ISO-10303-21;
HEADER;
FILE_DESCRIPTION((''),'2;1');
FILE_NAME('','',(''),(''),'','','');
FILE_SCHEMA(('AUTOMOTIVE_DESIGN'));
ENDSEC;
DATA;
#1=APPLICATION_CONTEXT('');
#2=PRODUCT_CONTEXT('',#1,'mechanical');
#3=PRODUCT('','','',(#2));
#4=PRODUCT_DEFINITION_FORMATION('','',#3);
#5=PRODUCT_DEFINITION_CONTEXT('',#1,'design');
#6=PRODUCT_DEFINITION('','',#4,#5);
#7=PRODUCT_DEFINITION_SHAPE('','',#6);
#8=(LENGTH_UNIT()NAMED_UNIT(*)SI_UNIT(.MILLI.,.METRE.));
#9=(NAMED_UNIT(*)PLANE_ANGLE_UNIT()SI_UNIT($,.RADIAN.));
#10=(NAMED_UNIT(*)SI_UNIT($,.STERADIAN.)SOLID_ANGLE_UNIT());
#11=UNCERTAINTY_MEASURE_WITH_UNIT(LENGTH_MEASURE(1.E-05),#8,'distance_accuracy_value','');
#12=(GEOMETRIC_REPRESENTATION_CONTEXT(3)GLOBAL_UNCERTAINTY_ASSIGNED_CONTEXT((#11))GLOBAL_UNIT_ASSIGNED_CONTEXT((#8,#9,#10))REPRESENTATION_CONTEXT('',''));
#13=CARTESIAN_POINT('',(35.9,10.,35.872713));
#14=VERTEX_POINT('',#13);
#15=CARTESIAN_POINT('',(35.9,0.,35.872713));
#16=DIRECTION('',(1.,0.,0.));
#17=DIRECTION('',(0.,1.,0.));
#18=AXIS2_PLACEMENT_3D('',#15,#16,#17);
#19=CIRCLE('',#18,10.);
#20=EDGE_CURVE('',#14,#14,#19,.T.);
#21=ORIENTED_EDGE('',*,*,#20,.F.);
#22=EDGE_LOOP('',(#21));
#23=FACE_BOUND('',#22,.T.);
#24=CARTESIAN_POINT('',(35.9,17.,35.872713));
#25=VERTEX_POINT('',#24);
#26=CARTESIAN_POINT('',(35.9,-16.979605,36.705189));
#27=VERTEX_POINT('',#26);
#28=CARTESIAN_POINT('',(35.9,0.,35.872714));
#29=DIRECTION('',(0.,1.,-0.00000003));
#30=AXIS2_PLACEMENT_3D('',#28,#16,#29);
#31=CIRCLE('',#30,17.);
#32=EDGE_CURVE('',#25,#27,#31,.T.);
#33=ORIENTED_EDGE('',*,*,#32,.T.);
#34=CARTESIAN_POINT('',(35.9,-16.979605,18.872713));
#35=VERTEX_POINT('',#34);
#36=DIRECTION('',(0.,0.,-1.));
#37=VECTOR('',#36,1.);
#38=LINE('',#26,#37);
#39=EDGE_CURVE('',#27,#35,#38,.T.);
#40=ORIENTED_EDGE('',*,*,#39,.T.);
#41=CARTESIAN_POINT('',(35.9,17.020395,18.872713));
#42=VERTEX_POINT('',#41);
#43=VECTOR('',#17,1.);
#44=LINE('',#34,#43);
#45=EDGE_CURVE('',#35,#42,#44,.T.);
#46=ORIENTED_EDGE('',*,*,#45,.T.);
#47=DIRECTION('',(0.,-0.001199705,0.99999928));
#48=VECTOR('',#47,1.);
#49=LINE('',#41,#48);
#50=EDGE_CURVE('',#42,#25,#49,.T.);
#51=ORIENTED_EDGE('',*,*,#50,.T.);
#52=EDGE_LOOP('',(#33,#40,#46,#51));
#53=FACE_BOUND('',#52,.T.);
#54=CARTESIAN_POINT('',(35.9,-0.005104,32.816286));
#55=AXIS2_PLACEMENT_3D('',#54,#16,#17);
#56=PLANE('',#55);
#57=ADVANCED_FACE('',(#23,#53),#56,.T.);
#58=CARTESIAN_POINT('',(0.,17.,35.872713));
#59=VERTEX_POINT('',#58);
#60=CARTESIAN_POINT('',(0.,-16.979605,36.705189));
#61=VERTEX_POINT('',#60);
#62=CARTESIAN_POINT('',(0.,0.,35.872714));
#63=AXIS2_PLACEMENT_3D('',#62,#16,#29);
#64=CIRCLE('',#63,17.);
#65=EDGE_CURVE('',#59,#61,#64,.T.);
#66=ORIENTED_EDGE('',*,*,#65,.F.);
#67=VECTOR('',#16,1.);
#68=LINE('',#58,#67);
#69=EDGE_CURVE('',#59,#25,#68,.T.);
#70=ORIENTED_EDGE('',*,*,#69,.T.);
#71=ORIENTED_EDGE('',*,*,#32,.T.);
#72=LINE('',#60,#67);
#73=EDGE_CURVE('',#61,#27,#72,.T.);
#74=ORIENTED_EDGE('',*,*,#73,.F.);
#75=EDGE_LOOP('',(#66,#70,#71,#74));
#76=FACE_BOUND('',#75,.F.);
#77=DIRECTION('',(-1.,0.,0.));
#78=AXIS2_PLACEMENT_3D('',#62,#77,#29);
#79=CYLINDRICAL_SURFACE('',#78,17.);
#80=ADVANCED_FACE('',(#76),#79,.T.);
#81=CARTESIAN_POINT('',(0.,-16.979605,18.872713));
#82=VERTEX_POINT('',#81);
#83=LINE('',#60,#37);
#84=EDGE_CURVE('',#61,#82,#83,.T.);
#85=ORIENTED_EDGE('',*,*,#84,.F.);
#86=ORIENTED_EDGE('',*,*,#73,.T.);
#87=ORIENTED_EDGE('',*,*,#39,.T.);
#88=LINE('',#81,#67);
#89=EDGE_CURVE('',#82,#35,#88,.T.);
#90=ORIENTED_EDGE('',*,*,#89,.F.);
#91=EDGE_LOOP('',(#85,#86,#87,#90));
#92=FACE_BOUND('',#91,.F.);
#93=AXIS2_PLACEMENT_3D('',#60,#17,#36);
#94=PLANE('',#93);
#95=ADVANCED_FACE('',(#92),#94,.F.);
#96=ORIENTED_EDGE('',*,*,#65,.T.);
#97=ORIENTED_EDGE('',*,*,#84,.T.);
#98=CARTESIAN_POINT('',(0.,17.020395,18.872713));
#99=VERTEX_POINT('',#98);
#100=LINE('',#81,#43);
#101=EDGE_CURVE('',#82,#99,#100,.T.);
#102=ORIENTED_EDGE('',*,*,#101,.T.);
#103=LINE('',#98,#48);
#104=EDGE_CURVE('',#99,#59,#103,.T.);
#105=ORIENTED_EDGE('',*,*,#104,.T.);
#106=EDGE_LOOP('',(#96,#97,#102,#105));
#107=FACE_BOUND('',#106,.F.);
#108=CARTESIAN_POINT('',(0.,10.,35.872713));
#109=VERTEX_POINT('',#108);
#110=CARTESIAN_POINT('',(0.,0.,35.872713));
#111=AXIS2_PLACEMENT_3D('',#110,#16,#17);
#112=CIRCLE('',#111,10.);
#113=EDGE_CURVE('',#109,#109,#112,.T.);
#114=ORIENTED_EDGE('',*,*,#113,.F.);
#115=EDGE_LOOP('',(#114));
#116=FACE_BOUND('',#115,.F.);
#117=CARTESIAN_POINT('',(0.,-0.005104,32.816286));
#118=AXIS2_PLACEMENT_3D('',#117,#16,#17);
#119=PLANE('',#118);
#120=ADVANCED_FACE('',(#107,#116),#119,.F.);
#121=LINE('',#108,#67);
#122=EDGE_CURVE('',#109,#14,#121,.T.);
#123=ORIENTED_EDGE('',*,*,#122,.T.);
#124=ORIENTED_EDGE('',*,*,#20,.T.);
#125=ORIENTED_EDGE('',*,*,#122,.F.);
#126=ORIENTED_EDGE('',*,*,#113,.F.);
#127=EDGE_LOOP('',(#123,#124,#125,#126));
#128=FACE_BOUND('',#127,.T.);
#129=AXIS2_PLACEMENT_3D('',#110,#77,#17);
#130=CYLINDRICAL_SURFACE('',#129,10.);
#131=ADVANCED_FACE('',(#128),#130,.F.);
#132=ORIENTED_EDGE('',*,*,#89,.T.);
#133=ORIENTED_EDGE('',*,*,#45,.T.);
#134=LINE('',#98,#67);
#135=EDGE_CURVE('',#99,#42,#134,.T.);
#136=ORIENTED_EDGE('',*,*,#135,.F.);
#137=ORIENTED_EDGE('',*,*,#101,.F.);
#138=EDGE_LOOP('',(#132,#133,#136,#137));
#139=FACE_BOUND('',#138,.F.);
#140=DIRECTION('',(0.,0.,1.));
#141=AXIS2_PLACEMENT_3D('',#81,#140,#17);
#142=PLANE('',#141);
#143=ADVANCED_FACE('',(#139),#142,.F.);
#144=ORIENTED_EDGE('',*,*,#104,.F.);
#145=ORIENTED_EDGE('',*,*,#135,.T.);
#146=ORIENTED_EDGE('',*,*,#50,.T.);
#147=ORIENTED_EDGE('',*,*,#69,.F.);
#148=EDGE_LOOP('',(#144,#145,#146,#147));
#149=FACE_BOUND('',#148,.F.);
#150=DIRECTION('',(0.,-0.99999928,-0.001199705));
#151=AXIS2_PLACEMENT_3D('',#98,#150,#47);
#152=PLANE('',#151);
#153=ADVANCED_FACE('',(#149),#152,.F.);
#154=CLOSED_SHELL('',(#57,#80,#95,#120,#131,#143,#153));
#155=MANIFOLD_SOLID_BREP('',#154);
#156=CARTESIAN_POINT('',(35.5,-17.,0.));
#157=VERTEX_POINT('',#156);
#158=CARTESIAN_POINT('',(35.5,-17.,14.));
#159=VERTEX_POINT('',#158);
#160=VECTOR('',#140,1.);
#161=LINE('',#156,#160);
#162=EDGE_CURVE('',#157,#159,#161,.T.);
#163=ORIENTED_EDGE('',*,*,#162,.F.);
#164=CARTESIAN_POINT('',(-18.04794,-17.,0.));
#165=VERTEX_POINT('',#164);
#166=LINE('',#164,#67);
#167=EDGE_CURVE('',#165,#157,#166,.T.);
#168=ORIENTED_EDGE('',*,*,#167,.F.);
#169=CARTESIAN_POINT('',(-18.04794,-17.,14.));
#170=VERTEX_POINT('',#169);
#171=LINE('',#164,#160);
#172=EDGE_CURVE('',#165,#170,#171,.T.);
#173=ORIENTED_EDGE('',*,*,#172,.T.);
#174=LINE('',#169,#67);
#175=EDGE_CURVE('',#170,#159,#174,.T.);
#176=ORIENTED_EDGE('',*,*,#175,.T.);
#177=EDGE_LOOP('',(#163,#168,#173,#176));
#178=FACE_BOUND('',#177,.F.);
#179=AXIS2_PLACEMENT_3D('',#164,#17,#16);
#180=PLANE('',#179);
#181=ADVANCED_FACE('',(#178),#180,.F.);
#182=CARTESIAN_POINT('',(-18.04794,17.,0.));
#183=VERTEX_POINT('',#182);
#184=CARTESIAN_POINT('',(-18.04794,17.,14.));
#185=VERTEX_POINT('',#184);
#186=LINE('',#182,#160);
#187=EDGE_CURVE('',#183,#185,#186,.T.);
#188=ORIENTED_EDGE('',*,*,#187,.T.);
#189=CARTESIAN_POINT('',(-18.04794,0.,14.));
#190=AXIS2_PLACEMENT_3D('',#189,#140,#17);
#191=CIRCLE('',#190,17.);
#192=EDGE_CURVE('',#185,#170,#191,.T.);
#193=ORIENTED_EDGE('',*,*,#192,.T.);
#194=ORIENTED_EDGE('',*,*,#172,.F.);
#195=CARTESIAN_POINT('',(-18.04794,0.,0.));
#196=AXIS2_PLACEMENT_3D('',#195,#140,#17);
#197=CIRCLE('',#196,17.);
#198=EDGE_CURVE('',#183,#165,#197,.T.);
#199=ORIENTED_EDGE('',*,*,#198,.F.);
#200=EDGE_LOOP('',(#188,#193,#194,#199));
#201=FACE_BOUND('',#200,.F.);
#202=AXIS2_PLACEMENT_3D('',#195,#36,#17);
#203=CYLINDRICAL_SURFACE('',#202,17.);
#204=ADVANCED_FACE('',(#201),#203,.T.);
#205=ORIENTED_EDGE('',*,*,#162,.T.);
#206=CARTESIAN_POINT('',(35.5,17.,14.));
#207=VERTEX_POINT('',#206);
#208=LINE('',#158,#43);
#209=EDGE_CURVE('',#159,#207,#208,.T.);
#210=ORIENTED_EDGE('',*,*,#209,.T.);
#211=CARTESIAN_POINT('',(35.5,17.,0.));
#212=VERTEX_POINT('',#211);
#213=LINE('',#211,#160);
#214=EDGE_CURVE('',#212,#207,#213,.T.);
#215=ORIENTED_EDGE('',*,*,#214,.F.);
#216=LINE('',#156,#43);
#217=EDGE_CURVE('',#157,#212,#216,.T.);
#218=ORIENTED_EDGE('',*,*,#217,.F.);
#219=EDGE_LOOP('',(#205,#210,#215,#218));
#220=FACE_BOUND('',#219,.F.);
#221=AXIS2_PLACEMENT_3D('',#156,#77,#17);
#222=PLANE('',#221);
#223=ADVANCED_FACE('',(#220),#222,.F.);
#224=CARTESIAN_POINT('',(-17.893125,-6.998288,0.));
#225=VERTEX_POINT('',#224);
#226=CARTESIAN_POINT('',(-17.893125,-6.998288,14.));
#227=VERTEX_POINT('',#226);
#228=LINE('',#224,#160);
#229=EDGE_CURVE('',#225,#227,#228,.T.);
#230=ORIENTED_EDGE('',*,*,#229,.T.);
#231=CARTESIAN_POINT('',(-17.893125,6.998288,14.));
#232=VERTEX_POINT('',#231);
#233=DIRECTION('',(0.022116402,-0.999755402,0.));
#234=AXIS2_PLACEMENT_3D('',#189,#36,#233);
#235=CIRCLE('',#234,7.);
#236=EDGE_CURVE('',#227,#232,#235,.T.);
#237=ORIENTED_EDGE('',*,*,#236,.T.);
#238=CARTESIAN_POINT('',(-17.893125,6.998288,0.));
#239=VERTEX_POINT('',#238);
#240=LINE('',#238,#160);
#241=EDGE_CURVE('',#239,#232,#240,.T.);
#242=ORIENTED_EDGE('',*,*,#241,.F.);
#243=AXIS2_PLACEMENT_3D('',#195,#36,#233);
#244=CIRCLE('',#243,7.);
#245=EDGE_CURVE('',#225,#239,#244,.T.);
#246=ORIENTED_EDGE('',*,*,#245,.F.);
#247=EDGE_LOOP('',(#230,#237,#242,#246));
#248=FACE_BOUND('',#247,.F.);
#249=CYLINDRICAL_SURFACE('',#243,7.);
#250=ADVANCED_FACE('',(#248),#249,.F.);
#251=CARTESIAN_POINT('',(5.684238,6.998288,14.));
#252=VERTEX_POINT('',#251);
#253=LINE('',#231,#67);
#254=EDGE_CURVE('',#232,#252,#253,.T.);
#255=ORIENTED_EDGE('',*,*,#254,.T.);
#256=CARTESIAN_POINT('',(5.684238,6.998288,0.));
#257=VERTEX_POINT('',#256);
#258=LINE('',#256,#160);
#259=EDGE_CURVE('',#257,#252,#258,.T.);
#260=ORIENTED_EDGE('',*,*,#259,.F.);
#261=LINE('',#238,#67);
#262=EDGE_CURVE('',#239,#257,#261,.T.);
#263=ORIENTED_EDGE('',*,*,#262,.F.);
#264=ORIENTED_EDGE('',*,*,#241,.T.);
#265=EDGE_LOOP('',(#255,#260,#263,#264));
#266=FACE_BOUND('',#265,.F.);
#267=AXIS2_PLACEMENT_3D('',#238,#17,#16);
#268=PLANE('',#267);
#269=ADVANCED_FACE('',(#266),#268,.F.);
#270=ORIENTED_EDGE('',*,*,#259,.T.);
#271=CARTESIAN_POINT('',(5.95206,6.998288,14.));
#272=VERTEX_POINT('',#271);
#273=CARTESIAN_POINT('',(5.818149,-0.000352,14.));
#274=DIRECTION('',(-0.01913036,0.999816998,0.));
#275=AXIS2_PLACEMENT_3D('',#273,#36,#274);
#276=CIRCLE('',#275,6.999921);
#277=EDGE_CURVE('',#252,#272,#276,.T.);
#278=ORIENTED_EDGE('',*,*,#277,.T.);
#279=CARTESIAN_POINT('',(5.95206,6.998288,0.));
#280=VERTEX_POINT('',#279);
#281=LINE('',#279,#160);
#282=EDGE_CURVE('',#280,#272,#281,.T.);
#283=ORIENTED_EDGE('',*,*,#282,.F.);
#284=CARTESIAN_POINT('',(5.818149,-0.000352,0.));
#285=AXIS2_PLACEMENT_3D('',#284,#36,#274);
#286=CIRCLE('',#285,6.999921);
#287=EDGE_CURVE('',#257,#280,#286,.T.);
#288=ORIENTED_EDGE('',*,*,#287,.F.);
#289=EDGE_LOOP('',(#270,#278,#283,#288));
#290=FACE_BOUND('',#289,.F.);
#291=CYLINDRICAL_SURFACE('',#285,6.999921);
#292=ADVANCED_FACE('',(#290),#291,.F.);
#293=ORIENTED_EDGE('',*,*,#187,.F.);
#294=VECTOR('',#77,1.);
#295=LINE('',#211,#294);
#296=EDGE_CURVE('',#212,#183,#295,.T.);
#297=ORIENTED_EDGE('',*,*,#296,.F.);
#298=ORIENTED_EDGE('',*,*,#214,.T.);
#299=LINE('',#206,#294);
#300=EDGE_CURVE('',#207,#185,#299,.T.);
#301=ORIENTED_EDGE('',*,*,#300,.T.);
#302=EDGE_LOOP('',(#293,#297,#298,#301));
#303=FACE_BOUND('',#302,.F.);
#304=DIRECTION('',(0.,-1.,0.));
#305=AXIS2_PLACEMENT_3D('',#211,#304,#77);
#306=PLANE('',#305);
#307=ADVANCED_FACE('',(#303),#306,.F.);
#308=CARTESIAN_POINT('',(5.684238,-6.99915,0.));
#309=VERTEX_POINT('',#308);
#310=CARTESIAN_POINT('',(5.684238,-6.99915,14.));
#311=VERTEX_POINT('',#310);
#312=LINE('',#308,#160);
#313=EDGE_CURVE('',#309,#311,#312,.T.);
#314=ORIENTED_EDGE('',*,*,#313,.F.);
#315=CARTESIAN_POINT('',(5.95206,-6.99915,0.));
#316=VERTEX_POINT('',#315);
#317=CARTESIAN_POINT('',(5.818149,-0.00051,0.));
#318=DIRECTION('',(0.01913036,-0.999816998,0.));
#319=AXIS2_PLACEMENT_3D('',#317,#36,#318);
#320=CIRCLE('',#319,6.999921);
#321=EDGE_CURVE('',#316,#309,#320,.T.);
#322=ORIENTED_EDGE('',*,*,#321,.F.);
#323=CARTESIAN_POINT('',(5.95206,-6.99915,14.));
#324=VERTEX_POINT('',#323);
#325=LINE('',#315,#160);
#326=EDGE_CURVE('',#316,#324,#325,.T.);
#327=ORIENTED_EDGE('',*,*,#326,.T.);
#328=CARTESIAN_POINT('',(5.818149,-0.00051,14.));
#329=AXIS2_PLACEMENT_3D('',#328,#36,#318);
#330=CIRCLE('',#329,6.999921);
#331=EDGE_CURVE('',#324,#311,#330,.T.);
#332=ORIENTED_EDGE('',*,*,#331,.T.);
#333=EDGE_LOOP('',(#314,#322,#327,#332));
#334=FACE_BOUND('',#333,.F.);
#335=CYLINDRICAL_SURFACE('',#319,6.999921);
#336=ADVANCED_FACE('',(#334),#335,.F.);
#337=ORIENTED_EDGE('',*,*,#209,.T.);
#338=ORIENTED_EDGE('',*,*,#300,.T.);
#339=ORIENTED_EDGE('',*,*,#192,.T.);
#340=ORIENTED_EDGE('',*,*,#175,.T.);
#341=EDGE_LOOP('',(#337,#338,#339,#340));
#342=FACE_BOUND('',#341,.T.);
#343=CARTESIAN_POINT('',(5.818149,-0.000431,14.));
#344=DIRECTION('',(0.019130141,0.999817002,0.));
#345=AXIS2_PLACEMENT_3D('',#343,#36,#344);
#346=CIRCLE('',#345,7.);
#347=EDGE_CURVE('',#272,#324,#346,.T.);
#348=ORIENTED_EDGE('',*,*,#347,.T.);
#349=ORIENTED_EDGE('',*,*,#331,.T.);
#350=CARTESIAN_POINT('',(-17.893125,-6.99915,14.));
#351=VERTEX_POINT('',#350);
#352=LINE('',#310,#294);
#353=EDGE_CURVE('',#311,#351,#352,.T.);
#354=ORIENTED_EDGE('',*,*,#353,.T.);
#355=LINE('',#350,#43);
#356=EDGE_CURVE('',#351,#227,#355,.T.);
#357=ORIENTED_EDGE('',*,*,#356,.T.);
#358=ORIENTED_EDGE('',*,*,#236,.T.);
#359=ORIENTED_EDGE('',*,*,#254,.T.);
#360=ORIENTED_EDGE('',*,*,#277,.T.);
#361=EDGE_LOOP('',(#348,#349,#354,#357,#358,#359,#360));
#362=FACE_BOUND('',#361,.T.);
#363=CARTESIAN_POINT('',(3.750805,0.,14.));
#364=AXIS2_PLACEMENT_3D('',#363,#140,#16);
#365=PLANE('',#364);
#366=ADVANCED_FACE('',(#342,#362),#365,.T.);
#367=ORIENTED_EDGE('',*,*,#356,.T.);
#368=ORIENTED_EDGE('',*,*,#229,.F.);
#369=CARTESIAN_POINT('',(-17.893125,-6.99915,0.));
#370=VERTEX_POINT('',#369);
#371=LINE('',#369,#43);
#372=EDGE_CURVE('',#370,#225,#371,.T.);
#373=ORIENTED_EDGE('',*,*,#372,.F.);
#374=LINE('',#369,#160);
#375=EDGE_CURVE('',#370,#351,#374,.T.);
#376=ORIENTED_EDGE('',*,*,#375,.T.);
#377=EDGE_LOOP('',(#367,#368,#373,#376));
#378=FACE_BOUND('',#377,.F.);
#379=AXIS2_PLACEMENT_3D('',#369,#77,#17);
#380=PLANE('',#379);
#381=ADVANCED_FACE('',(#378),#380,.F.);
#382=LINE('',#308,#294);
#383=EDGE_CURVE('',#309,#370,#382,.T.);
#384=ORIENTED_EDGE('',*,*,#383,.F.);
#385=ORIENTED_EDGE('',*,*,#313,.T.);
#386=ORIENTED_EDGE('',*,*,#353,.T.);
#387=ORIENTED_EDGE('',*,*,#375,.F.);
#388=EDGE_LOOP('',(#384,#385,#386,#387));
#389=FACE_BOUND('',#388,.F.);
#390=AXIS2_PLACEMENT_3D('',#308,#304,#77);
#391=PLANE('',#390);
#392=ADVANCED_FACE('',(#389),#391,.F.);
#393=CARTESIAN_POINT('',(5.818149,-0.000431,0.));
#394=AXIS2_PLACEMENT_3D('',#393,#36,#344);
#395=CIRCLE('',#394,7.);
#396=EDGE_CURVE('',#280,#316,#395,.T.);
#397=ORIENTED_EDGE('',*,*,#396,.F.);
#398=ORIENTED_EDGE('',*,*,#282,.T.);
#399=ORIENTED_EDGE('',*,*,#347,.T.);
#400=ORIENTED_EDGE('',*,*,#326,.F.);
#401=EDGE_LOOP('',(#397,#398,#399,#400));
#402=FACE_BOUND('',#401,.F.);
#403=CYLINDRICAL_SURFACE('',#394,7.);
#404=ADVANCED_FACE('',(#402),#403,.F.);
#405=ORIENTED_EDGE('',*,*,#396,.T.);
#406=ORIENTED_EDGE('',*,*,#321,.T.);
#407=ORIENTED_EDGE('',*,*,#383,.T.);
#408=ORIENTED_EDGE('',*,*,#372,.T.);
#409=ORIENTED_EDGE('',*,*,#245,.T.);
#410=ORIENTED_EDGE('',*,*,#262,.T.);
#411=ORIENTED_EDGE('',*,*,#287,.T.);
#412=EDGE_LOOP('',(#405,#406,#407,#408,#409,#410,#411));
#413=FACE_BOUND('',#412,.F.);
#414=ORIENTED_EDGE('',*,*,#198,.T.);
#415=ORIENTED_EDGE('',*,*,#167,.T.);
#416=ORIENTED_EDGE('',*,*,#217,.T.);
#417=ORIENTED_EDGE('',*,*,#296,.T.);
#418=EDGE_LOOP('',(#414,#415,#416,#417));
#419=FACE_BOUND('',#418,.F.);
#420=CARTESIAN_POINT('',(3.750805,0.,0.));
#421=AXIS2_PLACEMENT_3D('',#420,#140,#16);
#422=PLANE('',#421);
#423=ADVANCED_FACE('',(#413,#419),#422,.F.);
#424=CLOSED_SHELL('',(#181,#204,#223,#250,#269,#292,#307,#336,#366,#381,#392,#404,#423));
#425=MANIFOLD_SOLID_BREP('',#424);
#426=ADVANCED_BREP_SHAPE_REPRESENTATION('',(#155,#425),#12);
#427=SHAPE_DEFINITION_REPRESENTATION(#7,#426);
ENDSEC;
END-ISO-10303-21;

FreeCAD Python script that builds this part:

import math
import FreeCAD as App
import Part
import Sketcher
Q = App.Units.Quantity

doc = App.newDocument("Part")
body = doc.addObject("PartDesign::Body", "Body")

# Sketch on XY plane
sketch1 = body.newObject("Sketcher::SketchObject", "Sketch")
sketch1.AttachmentSupport = (doc.getObject("XY_Plane"), [""])
sketch1.MapMode = "FlatFace"
sketch1.addGeometry(Part.LineSegment(App.Vector(35.5, 17, 0), App.Vector(-18.04794, 17, 0)), False)
sketch1.addGeometry(Part.ArcOfCircle(Part.Circle(App.Vector(-18.04794, 0, 0), App.Vector(0, 0, 1), 17), math.radians(90), math.radians(270)), False)
sketch1.addGeometry(Part.LineSegment(App.Vector(-18.04794, -17, 0), App.Vector(35.5, -17, 0)), False)
sketch1.addGeometry(Part.LineSegment(App.Vector(35.5, -17, 0), App.Vector(35.5, 17, 0)), False)
sketch1.addGeometry(Part.LineSegment(App.Vector(-17.893125, -6.99915, 0), App.Vector(-17.893125, -6.998288, 0)), False)
sketch1.addGeometry(Part.ArcOfCircle(Part.Circle(App.Vector(-18.04794, 0, 0), App.Vector(0, 0, 1), 7), math.radians(88.73272), math.radians(271.26728)), False)
sketch1.addGeometry(Part.LineSegment(App.Vector(-17.893125, 6.998288, 0), App.Vector(5.684238, 6.998288, 0)), False)
sketch1.addGeometry(Part.ArcOfCircle(Part.Circle(App.Vector(5.818149, -0.000352, 0), App.Vector(0, 0, 1), 6.999921), math.radians(88.903844), math.radians(91.096156)), False)
sketch1.addGeometry(Part.ArcOfCircle(Part.Circle(App.Vector(5.818149, -0.000431, 0), App.Vector(0, 0, 1), 7), math.radians(-88.903857), math.radians(88.903857)), False)
sketch1.addGeometry(Part.ArcOfCircle(Part.Circle(App.Vector(5.818149, -0.00051, 0), App.Vector(0, 0, 1), 6.999921), math.radians(-91.096156), math.radians(-88.903844)), False)
sketch1.addGeometry(Part.LineSegment(App.Vector(5.684238, -6.99915, 0), App.Vector(-17.893125, -6.99915, 0)), False)
sketch1.addConstraint(Sketcher.Constraint("Coincident", 0, 2, 1, 1))
sketch1.addConstraint(Sketcher.Constraint("Coincident", 1, 2, 2, 1))
sketch1.addConstraint(Sketcher.Constraint("Coincident", 2, 2, 3, 1))
sketch1.addConstraint(Sketcher.Constraint("Coincident", 3, 2, 0, 1))
sketch1.addConstraint(Sketcher.Constraint("Coincident", 4, 2, 5, 2))
sketch1.addConstraint(Sketcher.Constraint("Coincident", 5, 1, 6, 1))
sketch1.addConstraint(Sketcher.Constraint("Coincident", 6, 2, 7, 2))
sketch1.addConstraint(Sketcher.Constraint("Coincident", 7, 1, 8, 2))
sketch1.addConstraint(Sketcher.Constraint("Coincident", 8, 1, 9, 2))
sketch1.addConstraint(Sketcher.Constraint("Coincident", 9, 1, 10, 1))
sketch1.addConstraint(Sketcher.Constraint("Coincident", 10, 2, 4, 1))
sketch1.addConstraint(Sketcher.Constraint("Horizontal", 0))
sketch1.addConstraint(Sketcher.Constraint("Horizontal", 2))
sketch1.addConstraint(Sketcher.Constraint("Vertical", 3))
sketch1.addConstraint(Sketcher.Constraint("Vertical", 4))
sketch1.addConstraint(Sketcher.Constraint("Horizontal", 6))
sketch1.addConstraint(Sketcher.Constraint("Horizontal", 10))
sketch1.addConstraint(Sketcher.Constraint("Coincident", 5, 3, 1, 3))
sketch1.addConstraint(Sketcher.Constraint("PointOnObject", 1, 3, -1))
sketch1.addConstraint(Sketcher.Constraint("Radius", 1, Q("17 mm")))
sketch1.addConstraint(Sketcher.Constraint("Radius", 5, Q("7 mm")))
sketch1.addConstraint(Sketcher.Constraint("Radius", 8, Q("7 mm")))
sketch1.addConstraint(Sketcher.Constraint("DistanceX", -1, 1, 2, 2, Q("35.5 mm")))
sketch1.addConstraint(Sketcher.Constraint("Radius", 7, Q("6.999921 mm")))
sketch1.addConstraint(Sketcher.Constraint("Radius", 9, Q("6.999921 mm")))
sketch1.addConstraint(Sketcher.Constraint("DistanceX", 0, 2, 0, 1, Q("53.54794 mm")))
sketch1.addConstraint(Sketcher.Constraint("DistanceX", 2, 1, 2, 2, Q("53.54794 mm")))
sketch1.addConstraint(Sketcher.Constraint("DistanceY", 9, 3, 6, 2, Q("6.998798 mm")))
sketch1.addConstraint(Sketcher.Constraint("DistanceY", 9, 3, 7, 1, Q("6.998798 mm")))
sketch1.addConstraint(Sketcher.Constraint("DistanceY", 8, 1, 7, 3, Q("6.998798 mm")))
sketch1.addConstraint(Sketcher.Constraint("DistanceY", 9, 1, 7, 3, Q("6.998798 mm")))
sketch1.addConstraint(Sketcher.Constraint("DistanceX", 6, 1, 6, 2, Q("23.577363 mm")))
sketch1.addConstraint(Sketcher.Constraint("DistanceX", 10, 2, 10, 1, Q("23.577363 mm")))
sketch1.addConstraint(Sketcher.Constraint("DistanceY", 4, 1, 4, 2, Q("0.000862 mm")))
sketch1.addConstraint(Sketcher.Constraint("DistanceX", 1, 3, -1, 1, Q("18.04794 mm")))
sketch1.addConstraint(Sketcher.Constraint("DistanceX", -1, 1, 7, 3, Q("5.818149 mm")))
sketch1.addConstraint(Sketcher.Constraint("DistanceY", 7, 3, -1, 1, Q("0.000352 mm")))
pad1 = body.newObject("PartDesign::Pad", "Pad")
pad1.Profile = sketch1
pad1.Length = 14
body2 = doc.addObject("PartDesign::Body", "Body001")

# Sketch on YZ plane
sketch2 = body2.newObject("Sketcher::SketchObject", "Sketch001")
sketch2.AttachmentSupport = (doc.getObject("YZ_Plane001"), [""])
sketch2.MapMode = "FlatFace"
sketch2.addGeometry(Part.LineSegment(App.Vector(-17, 19, 0), App.Vector(17, 19, 0)), False)
sketch2.addGeometry(Part.LineSegment(App.Vector(17, 19, 0), App.Vector(17, 36, 0)), False)
sketch2.addGeometry(Part.ArcOfCircle(Part.Circle(App.Vector(0, 36, 0), App.Vector(0, 0, 1), 17), math.radians(0), math.radians(177)), False)
sketch2.addGeometry(Part.LineSegment(App.Vector(-17, 37, 0), App.Vector(-17, 19, 0)), False)
sketch2.addGeometry(Part.Circle(App.Vector(0, 36, 0), App.Vector(0, 0, 1), 10), False)
sketch2.addConstraint(Sketcher.Constraint("Coincident", 0, 2, 1, 1))
sketch2.addConstraint(Sketcher.Constraint("Coincident", 1, 2, 2, 1))
sketch2.addConstraint(Sketcher.Constraint("Coincident", 2, 2, 3, 1))
sketch2.addConstraint(Sketcher.Constraint("Coincident", 3, 2, 0, 1))
sketch2.addConstraint(Sketcher.Constraint("Horizontal", 0))
sketch2.addConstraint(Sketcher.Constraint("Vertical", 3))
sketch2.addConstraint(Sketcher.Constraint("Coincident", 4, 3, 2, 3))
sketch2.addConstraint(Sketcher.Constraint("PointOnObject", 2, 3, -2))
sketch2.addConstraint(Sketcher.Constraint("Horizontal", 4, 3, 1, 2))
sketch2.addConstraint(Sketcher.Constraint("Diameter", 4, Q("20 mm")))
sketch2.addConstraint(Sketcher.Constraint("Radius", 2, Q("17 mm")))
sketch2.addConstraint(Sketcher.Constraint("DistanceX", 0, 1, 0, 2, Q("34 mm")))
sketch2.addConstraint(Sketcher.Constraint("DistanceY", 0, 2, 4, 3, Q("17 mm")))
sketch2.addConstraint(Sketcher.Constraint("DistanceY", 3, 2, 3, 1, Q("17.832476 mm")))
sketch2.addConstraint(Sketcher.Constraint("DistanceY", -1, 1, 2, 2, Q("36.705189 mm")))
pad2 = body2.newObject("PartDesign::Pad", "Pad001")
pad2.Profile = sketch2
pad2.Length = 35.9

doc.recompute()
